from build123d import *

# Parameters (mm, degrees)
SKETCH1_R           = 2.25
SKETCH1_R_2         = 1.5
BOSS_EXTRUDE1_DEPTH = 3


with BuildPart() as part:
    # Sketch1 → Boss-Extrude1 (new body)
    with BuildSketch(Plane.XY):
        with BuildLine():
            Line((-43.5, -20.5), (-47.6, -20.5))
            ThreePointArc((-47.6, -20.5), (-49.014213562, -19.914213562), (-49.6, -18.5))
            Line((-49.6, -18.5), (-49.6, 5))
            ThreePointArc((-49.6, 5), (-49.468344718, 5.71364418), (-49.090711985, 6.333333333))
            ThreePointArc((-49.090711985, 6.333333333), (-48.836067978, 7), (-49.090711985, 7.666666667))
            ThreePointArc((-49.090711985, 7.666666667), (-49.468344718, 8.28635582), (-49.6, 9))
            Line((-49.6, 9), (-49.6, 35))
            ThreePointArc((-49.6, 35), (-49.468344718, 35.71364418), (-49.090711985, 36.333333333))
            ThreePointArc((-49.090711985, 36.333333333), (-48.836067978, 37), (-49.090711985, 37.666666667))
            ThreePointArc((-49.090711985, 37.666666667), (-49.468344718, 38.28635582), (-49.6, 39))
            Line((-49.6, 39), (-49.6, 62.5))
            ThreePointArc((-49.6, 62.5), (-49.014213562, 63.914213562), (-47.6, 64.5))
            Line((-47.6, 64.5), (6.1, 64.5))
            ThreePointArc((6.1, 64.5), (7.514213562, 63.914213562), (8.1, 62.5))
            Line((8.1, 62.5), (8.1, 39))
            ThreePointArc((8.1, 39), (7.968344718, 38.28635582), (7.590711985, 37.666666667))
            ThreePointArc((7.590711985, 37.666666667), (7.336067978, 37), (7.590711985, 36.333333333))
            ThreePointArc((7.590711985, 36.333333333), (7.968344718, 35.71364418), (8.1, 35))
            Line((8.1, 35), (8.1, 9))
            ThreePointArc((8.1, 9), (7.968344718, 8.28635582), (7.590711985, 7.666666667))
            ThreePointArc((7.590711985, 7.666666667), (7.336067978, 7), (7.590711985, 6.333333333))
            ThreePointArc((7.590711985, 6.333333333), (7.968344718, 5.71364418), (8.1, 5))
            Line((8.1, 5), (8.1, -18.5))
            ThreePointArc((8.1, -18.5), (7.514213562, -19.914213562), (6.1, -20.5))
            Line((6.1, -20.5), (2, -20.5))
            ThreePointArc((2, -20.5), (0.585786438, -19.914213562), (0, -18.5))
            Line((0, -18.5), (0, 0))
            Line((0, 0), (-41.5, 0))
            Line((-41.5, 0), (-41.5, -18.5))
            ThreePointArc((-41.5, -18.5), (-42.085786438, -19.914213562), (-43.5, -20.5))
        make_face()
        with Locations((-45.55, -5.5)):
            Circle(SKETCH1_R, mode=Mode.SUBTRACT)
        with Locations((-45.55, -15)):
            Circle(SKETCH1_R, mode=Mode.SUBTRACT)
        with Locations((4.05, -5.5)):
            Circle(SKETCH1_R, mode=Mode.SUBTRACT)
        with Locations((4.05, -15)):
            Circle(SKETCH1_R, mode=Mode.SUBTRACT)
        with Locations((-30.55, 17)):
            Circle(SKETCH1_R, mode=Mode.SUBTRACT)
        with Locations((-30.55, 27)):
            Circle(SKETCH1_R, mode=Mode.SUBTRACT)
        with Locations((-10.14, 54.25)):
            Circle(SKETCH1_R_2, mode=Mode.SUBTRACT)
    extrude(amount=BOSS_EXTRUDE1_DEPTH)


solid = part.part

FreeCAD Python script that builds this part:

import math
import FreeCAD as App
import Part
import Sketcher

V = App.Vector

doc = App.newDocument("Part")
body = doc.addObject("PartDesign::Body", "Body")

# Sketch on XY plane
sketch1 = body.newObject("Sketcher::SketchObject", "Sketch")
sketch1.AttachmentSupport = (doc.getObject("XY_Plane"), [""])
sketch1.MapMode = "FlatFace"
sketch1.addGeometry(Part.LineSegment(V(-47.6, -20.5, 0), V(-43.5, -20.5, 0)), False)
sketch1.addGeometry(Part.ArcOfCircle(Part.Circle(V(-43.5, -18.5, 0), V(0, 0, 1), 2), math.radians(-90), math.radians(0)), False)
sketch1.addGeometry(Part.LineSegment(V(-41.5, -18.5, 0), V(-41.5, 0, 0)), False)
sketch1.addGeometry(Part.LineSegment(V(-41.5, 0, 0), V(0, 0, 0)), False)
sketch1.addGeometry(Part.LineSegment(V(0, 0, 0), V(0, -18.5, 0)), False)
sketch1.addGeometry(Part.ArcOfCircle(Part.Circle(V(2, -18.5, 0), V(0, 0, 1), 2), math.radians(-180), math.radians(-90)), False)
sketch1.addGeometry(Part.LineSegment(V(2, -20.5, 0), V(6.1, -20.5, 0)), False)
sketch1.addGeometry(Part.ArcOfCircle(Part.Circle(V(6.1, -18.5, 0), V(0, 0, 1), 2), math.radians(-90), math.radians(0)), False)
sketch1.addGeometry(Part.LineSegment(V(8.1, -18.5, 0), V(8.1, 5, 0)), False)
sketch1.addGeometry(Part.ArcOfCircle(Part.Circle(V(6.1, 5, 0), V(0, 0, 1), 2), math.radians(0), math.radians(42)), False)
sketch1.addGeometry(Part.ArcOfCircle(Part.Circle(V(8.3, 7, 0), V(0, 0, 1), 1), math.radians(138), math.radians(222)), False)
sketch1.addGeometry(Part.ArcOfCircle(Part.Circle(V(6.1, 9, 0), V(0, 0, 1), 2), math.radians(-42), math.radians(0)), False)
sketch1.addGeometry(Part.LineSegment(V(8.1, 9, 0), V(8.1, 35, 0)), False)
sketch1.addGeometry(Part.ArcOfCircle(Part.Circle(V(6.1, 35, 0), V(0, 0, 1), 2), math.radians(0), math.radians(42)), False)
sketch1.addGeometry(Part.ArcOfCircle(Part.Circle(V(8.3, 37, 0), V(0, 0, 1), 1), math.radians(138), math.radians(222)), False)
sketch1.addGeometry(Part.ArcOfCircle(Part.Circle(V(6.1, 39, 0), V(0, 0, 1), 2), math.radians(-42), math.radians(0)), False)
sketch1.addGeometry(Part.LineSegment(V(8.1, 39, 0), V(8.1, 62.5, 0)), False)
sketch1.addGeometry(Part.ArcOfCircle(Part.Circle(V(6.1, 62.5, 0), V(0, 0, 1), 2), math.radians(0), math.radians(90)), False)
sketch1.addGeometry(Part.LineSegment(V(6.1, 64.5, 0), V(-47.6, 64.5, 0)), False)
sketch1.addGeometry(Part.ArcOfCircle(Part.Circle(V(-47.6, 62.5, 0), V(0, 0, 1), 2), math.radians(90), math.radians(180)), False)
sketch1.addGeometry(Part.LineSegment(V(-49.6, 62.5, 0), V(-49.6, 39, 0)), False)
sketch1.addGeometry(Part.ArcOfCircle(Part.Circle(V(-47.6, 39, 0), V(0, 0, 1), 2), math.radians(180), math.radians(222)), False)
sketch1.addGeometry(Part.ArcOfCircle(Part.Circle(V(-49.8, 37, 0), V(0, 0, 1), 1), math.radians(-42), math.radians(42)), False)
sketch1.addGeometry(Part.ArcOfCircle(Part.Circle(V(-47.6, 35, 0), V(0, 0, 1), 2), math.radians(138), math.radians(180)), False)
sketch1.addGeometry(Part.LineSegment(V(-49.6, 35, 0), V(-49.6, 9, 0)), False)
sketch1.addGeometry(Part.ArcOfCircle(Part.Circle(V(-47.6, 9, 0), V(0, 0, 1), 2), math.radians(180), math.radians(222)), False)
sketch1.addGeometry(Part.ArcOfCircle(Part.Circle(V(-49.8, 7, 0), V(0, 0, 1), 1), math.radians(-42), math.radians(42)), False)
sketch1.addGeometry(Part.ArcOfCircle(Part.Circle(V(-47.6, 5, 0), V(0, 0, 1), 2), math.radians(138), math.radians(180)), False)
sketch1.addGeometry(Part.LineSegment(V(-49.6, 5, 0), V(-49.6, -18.5, 0)), False)
sketch1.addGeometry(Part.ArcOfCircle(Part.Circle(V(-47.6, -18.5, 0), V(0, 0, 1), 2), math.radians(-180), math.radians(-90)), False)
sketch1.addGeometry(Part.Circle(V(4, -15, 0), V(0, 0, 1), 2.2), False)
sketch1.addGeometry(Part.Circle(V(4, -5.5, 0), V(0, 0, 1), 2.2), False)
sketch1.addGeometry(Part.Circle(V(-45.5, -15, 0), V(0, 0, 1), 2.2), False)
sketch1.addGeometry(Part.Circle(V(-45.5, -5.5, 0), V(0, 0, 1), 2.2), False)
sketch1.addGeometry(Part.Circle(V(-30.6, 17, 0), V(0, 0, 1), 2.2), False)
sketch1.addGeometry(Part.Circle(V(-10.1, 54.2, 0), V(0, 0, 1), 1.5), False)
sketch1.addGeometry(Part.Circle(V(-30.6, 27, 0), V(0, 0, 1), 2.2), False)
sketch1.addConstraint(Sketcher.Constraint("Tangent", 0, 2, 1, 1))
sketch1.addConstraint(Sketcher.Constraint("Tangent", 1, 2, 2, 1))
sketch1.addConstraint(Sketcher.Constraint("Coincident", 2, 2, 3, 1))
sketch1.addConstraint(Sketcher.Constraint("Coincident", 3, 2, 4, 1))
sketch1.addConstraint(Sketcher.Constraint("Tangent", 4, 2, 5, 1))
sketch1.addConstraint(Sketcher.Constraint("Tangent", 5, 2, 6, 1))
sketch1.addConstraint(Sketcher.Constraint("Tangent", 6, 2, 7, 1))
sketch1.addConstraint(Sketcher.Constraint("Tangent", 7, 2, 8, 1))
sketch1.addConstraint(Sketcher.Constraint("Tangent", 8, 2, 9, 1))
sketch1.addConstraint(Sketcher.Constraint("Tangent", 9, 2, 10, 2))
sketch1.addConstraint(Sketcher.Constraint("Tangent", 10, 1, 11, 1))
sketch1.addConstraint(Sketcher.Constraint("Tangent", 11, 2, 12, 1))
sketch1.addConstraint(Sketcher.Constraint("Tangent", 12, 2, 13, 1))
sketch1.addConstraint(Sketcher.Constraint("Tangent", 13, 2, 14, 2))
sketch1.addConstraint(Sketcher.Constraint("Tangent", 14, 1, 15, 1))
sketch1.addConstraint(Sketcher.Constraint("Tangent", 15, 2, 16, 1))
sketch1.addConstraint(Sketcher.Constraint("Tangent", 16, 2, 17, 1))
sketch1.addConstraint(Sketcher.Constraint("Tangent", 17, 2, 18, 1))
sketch1.addConstraint(Sketcher.Constraint("Tangent", 18, 2, 19, 1))
sketch1.addConstraint(Sketcher.Constraint("Tangent", 19, 2, 20, 1))
sketch1.addConstraint(Sketcher.Constraint("Tangent", 20, 2, 21, 1))
sketch1.addConstraint(Sketcher.Constraint("Tangent", 21, 2, 22, 2))
sketch1.addConstraint(Sketcher.Constraint("Tangent", 22, 1, 23, 1))
sketch1.addConstraint(Sketcher.Constraint("Tangent", 23, 2, 24, 1))
sketch1.addConstraint(Sketcher.Constraint("Tangent", 24, 2, 25, 1))
sketch1.addConstraint(Sketcher.Constraint("Tangent", 25, 2, 26, 2))
sketch1.addConstraint(Sketcher.Constraint("Tangent", 26, 1, 27, 1))
sketch1.addConstraint(Sketcher.Constraint("Tangent", 27, 2, 28, 1))
sketch1.addConstraint(Sketcher.Constraint("Tangent", 28, 2, 29, 1))
sketch1.addConstraint(Sketcher.Constraint("Tangent", 29, 2, 0, 1))
sketch1.addConstraint(Sketcher.Constraint("Horizontal", 0))
sketch1.addConstraint(Sketcher.Constraint("Vertical", 2))
sketch1.addConstraint(Sketcher.Constraint("Horizontal", 3))
sketch1.addConstraint(Sketcher.Constraint("Vertical", 4))
sketch1.addConstraint(Sketcher.Constraint("Horizontal", 6))
sketch1.addConstraint(Sketcher.Constraint("Vertical", 8))
sketch1.addConstraint(Sketcher.Constraint("Vertical", 12))
sketch1.addConstraint(Sketcher.Constraint("Vertical", 16))
sketch1.addConstraint(Sketcher.Constraint("Horizontal", 18))
sketch1.addConstraint(Sketcher.Constraint("Vertical", 20))
sketch1.addConstraint(Sketcher.Constraint("Vertical", 24))
sketch1.addConstraint(Sketcher.Constraint("Vertical", 28))
sketch1.addConstraint(Sketcher.Constraint("Coincident", 3, 2, -1, 1))
sketch1.addConstraint(Sketcher.Constraint("Equal", 1, 5))
sketch1.addConstraint(Sketcher.Constraint("Equal", 5, 7))
sketch1.addConstraint(Sketcher.Constraint("Equal", 7, 9))
sketch1.addConstraint(Sketcher.Constraint("Equal", 9, 11))
sketch1.addConstraint(Sketcher.Constraint("Equal", 11, 13))
sketch1.addConstraint(Sketcher.Constraint("Equal", 10, 14))
sketch1.addConstraint(Sketcher.Constraint("Equal", 13, 15))
sketch1.addConstraint(Sketcher.Constraint("Equal", 15, 17))
sketch1.addConstraint(Sketcher.Constraint("Equal", 17, 19))
sketch1.addConstraint(Sketcher.Constraint("Equal", 19, 21))
sketch1.addConstraint(Sketcher.Constraint("Equal", 14, 22))
sketch1.addConstraint(Sketcher.Constraint("Equal", 21, 23))
sketch1.addConstraint(Sketcher.Constraint("Equal", 23, 25))
sketch1.addConstraint(Sketcher.Constraint("Equal", 22, 26))
sketch1.addConstraint(Sketcher.Constraint("Equal", 25, 27))
sketch1.addConstraint(Sketcher.Constraint("Equal", 27, 29))
sketch1.addConstraint(Sketcher.Constraint("Equal", 30, 31))
sketch1.addConstraint(Sketcher.Constraint("Equal", 31, 32))
sketch1.addConstraint(Sketcher.Constraint("Equal", 32, 33))
sketch1.addConstraint(Sketcher.Constraint("Equal", 33, 34))
sketch1.addConstraint(Sketcher.Constraint("Equal", 34, 36))
sketch1.addConstraint(Sketcher.Constraint("Horizontal", 1, 3, 5, 3))
sketch1.addConstraint(Sketcher.Constraint("Horizontal", 15, 3, 21, 3))
sketch1.addConstraint(Sketcher.Constraint("Horizontal", 14, 3, 22, 3))
sketch1.addConstraint(Sketcher.Constraint("Horizontal", 13, 3, 23, 3))
sketch1.addConstraint(Sketcher.Constraint("Horizontal", 11, 3, 25, 3))
sketch1.addConstraint(Sketcher.Constraint("Horizontal", 10, 3, 26, 3))
sketch1.addConstraint(Sketcher.Constraint("Horizontal", 9, 3, 27, 3))
sketch1.addConstraint(Sketcher.Constraint("Horizontal", 30, 3, 32, 3))
sketch1.addConstraint(Sketcher.Constraint("Horizontal", 31, 3, 33, 3))
sketch1.addConstraint(Sketcher.Constraint("Vertical", 9, 3, 11, 3))
sketch1.addConstraint(Sketcher.Constraint("Vertical", 10, 3, 14, 3))
sketch1.addConstraint(Sketcher.Constraint("Vertical", 13, 3, 15, 3))
sketch1.addConstraint(Sketcher.Constraint("Vertical", 30, 3, 31, 3))
sketch1.addConstraint(Sketcher.Constraint("Vertical", 32, 3, 33, 3))
sketch1.addConstraint(Sketcher.Constraint("Vertical", 34, 3, 36, 3))
sketch1.addConstraint(Sketcher.Constraint("Equal", 0, 6))
sketch1.addConstraint(Sketcher.Constraint("Equal", 8, 16))
sketch1.addConstraint(Sketcher.Constraint("Diameter", 35, 3.0))
sketch1.addConstraint(Sketcher.Constraint("Radius", 1, 2.0))
sketch1.addConstraint(Sketcher.Constraint("Radius", 10, 1.0))
sketch1.addConstraint(Sketcher.Constraint("Diameter", 30, 4.5))
sketch1.addConstraint(Sketcher.Constraint("DistanceY", 12, 1, 12, 2, 26.0))
sketch1.addConstraint(Sketcher.Constraint("DistanceX", 0, 1, 0, 2, 4.1))
sketch1.addConstraint(Sketcher.Constraint("DistanceX", 3, 1, 3, 2, 41.5))
sketch1.addConstraint(Sketcher.Constraint("DistanceY", 2, 1, 2, 2, 18.5))
sketch1.addConstraint(Sketcher.Constraint("DistanceY", 8, 1, 8, 2, 23.5))
sketch1.addConstraint(Sketcher.Constraint("DistanceY", -1, 1, 10, 3, 7.0))
sketch1.addConstraint(Sketcher.Constraint("DistanceY", 30, 3, -1, 1, 15.0))
sketch1.addConstraint(Sketcher.Constraint("DistanceY", -1, 1, 34, 3, 17.0))
sketch1.addConstraint(Sketcher.Constraint("DistanceY", -1, 1, 36, 3, 27.0))
sketch1.addConstraint(Sketcher.Constraint("DistanceY", 5, 3, 31, 3, 13.0))
sketch1.addConstraint(Sketcher.Constraint("DistanceX", 33, 3, 34, 3, 15.0))
sketch1.addConstraint(Sketcher.Constraint("DistanceX", -1, 1, 30, 3, 4.05))
sketch1.addConstraint(Sketcher.Constraint("DistanceX", 32, 3, -1, 1, 45.55))
sketch1.addConstraint(Sketcher.Constraint("DistanceX", 35, 3, -1, 1, 10.14))
sketch1.addConstraint(Sketcher.Constraint("DistanceY", -1, 1, 35, 3, 54.25))
pad1 = body.newObject("PartDesign::Pad", "Pad")
pad1.Profile = sketch1
pad1.Length = 3

doc.recompute()
